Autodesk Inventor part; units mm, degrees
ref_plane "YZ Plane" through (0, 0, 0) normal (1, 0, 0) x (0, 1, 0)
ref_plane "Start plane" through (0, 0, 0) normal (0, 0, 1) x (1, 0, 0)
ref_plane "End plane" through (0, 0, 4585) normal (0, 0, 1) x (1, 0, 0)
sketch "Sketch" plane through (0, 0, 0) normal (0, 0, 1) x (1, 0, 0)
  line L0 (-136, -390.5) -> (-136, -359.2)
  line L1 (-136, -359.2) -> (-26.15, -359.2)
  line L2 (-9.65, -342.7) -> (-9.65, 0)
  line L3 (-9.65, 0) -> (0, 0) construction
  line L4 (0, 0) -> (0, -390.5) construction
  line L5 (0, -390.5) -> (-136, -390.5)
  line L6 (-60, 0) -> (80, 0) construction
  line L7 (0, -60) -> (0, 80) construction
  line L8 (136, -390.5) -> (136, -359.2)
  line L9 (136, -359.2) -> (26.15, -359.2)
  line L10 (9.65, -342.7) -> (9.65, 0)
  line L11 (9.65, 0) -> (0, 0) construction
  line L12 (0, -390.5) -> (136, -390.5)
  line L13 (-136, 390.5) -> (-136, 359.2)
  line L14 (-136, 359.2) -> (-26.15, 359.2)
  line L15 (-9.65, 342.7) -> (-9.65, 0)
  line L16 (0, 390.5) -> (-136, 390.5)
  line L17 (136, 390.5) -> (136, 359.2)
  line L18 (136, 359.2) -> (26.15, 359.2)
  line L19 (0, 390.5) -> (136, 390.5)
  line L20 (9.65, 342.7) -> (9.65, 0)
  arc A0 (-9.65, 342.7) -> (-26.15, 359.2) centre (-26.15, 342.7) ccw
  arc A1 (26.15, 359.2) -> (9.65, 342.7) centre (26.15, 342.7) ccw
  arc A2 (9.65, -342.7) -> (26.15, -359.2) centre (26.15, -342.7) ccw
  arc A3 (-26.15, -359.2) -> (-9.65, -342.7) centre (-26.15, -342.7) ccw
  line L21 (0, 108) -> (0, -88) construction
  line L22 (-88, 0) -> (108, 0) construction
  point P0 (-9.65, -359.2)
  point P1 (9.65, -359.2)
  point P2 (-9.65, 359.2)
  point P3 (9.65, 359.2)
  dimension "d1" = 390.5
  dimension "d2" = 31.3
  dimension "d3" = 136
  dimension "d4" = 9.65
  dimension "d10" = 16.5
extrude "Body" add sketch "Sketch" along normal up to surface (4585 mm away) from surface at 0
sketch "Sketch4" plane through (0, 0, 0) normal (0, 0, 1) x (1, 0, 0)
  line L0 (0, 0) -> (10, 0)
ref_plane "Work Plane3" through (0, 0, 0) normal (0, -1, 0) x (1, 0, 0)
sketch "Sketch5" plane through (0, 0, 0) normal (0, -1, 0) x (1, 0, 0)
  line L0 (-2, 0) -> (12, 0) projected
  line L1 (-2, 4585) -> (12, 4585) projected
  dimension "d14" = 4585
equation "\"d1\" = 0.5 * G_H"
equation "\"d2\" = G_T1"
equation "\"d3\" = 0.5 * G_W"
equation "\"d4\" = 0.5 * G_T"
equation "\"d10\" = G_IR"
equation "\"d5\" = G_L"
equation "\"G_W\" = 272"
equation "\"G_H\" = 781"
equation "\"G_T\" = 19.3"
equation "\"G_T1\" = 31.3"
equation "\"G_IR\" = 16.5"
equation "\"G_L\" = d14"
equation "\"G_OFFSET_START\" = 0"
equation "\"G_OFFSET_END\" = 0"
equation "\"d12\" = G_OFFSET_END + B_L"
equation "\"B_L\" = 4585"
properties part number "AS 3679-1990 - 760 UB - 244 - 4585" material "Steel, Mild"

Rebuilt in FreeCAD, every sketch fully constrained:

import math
import FreeCAD as App
import Part
import Sketcher

V = App.Vector

doc = App.newDocument("Part")
body = doc.addObject("PartDesign::Body", "Body")

# Sketch on XY plane
sketch1 = body.newObject("Sketcher::SketchObject", "Sketch")
sketch1.AttachmentSupport = (doc.getObject("XY_Plane"), [""])
sketch1.MapMode = "FlatFace"
sketch1.addGeometry(Part.LineSegment(V(-136, -359, 0), V(-136, -390, 0)), False)
sketch1.addGeometry(Part.LineSegment(V(-136, -390, 0), V(136, -390, 0)), False)
sketch1.addGeometry(Part.LineSegment(V(136, -390, 0), V(136, -359, 0)), False)
sketch1.addGeometry(Part.LineSegment(V(136, -359, 0), V(26, -359, 0)), False)
sketch1.addGeometry(Part.ArcOfCircle(Part.Circle(V(26, -343, 0), V(0, 0, 1), 16), math.radians(180), math.radians(270)), False)
sketch1.addGeometry(Part.LineSegment(V(10, -343, 0), V(10, 343, 0)), False)
sketch1.addGeometry(Part.ArcOfCircle(Part.Circle(V(26, 343, 0), V(0, 0, 1), 16), math.radians(90), math.radians(180)), False)
sketch1.addGeometry(Part.LineSegment(V(26, 359, 0), V(136, 359, 0)), False)
sketch1.addGeometry(Part.LineSegment(V(136, 359, 0), V(136, 390, 0)), False)
sketch1.addGeometry(Part.LineSegment(V(136, 390, 0), V(-136, 390, 0)), False)
sketch1.addGeometry(Part.LineSegment(V(-136, 390, 0), V(-136, 359, 0)), False)
sketch1.addGeometry(Part.LineSegment(V(-136, 359, 0), V(-26, 359, 0)), False)
sketch1.addGeometry(Part.ArcOfCircle(Part.Circle(V(-26, 343, 0), V(0, 0, 1), 16), math.radians(0), math.radians(90)), False)
sketch1.addGeometry(Part.LineSegment(V(-10, 343, 0), V(-10, -343, 0)), False)
sketch1.addGeometry(Part.ArcOfCircle(Part.Circle(V(-26, -343, 0), V(0, 0, 1), 16), math.radians(-90), math.radians(0)), False)
sketch1.addGeometry(Part.LineSegment(V(-26, -359, 0), V(-136, -359, 0)), False)
sketch1.addConstraint(Sketcher.Constraint("Coincident", 0, 2, 1, 1))
sketch1.addConstraint(Sketcher.Constraint("Coincident", 1, 2, 2, 1))
sketch1.addConstraint(Sketcher.Constraint("Coincident", 2, 2, 3, 1))
sketch1.addConstraint(Sketcher.Constraint("Tangent", 3, 2, 4, 2))
sketch1.addConstraint(Sketcher.Constraint("Tangent", 4, 1, 5, 1))
sketch1.addConstraint(Sketcher.Constraint("Tangent", 5, 2, 6, 2))
sketch1.addConstraint(Sketcher.Constraint("Tangent", 6, 1, 7, 1))
sketch1.addConstraint(Sketcher.Constraint("Coincident", 7, 2, 8, 1))
sketch1.addConstraint(Sketcher.Constraint("Coincident", 8, 2, 9, 1))
sketch1.addConstraint(Sketcher.Constraint("Coincident", 9, 2, 10, 1))
sketch1.addConstraint(Sketcher.Constraint("Coincident", 10, 2, 11, 1))
sketch1.addConstraint(Sketcher.Constraint("Tangent", 11, 2, 12, 2))
sketch1.addConstraint(Sketcher.Constraint("Tangent", 12, 1, 13, 1))
sketch1.addConstraint(Sketcher.Constraint("Tangent", 13, 2, 14, 2))
sketch1.addConstraint(Sketcher.Constraint("Tangent", 14, 1, 15, 1))
sketch1.addConstraint(Sketcher.Constraint("Coincident", 15, 2, 0, 1))
sketch1.addConstraint(Sketcher.Constraint("Vertical", 0))
sketch1.addConstraint(Sketcher.Constraint("Horizontal", 1))
sketch1.addConstraint(Sketcher.Constraint("Vertical", 2))
sketch1.addConstraint(Sketcher.Constraint("Horizontal", 3))
sketch1.addConstraint(Sketcher.Constraint("Vertical", 5))
sketch1.addConstraint(Sketcher.Constraint("Horizontal", 7))
sketch1.addConstraint(Sketcher.Constraint("Vertical", 8))
sketch1.addConstraint(Sketcher.Constraint("Horizontal", 9))
sketch1.addConstraint(Sketcher.Constraint("Vertical", 10))
sketch1.addConstraint(Sketcher.Constraint("Horizontal", 11))
sketch1.addConstraint(Sketcher.Constraint("Vertical", 13))
sketch1.addConstraint(Sketcher.Constraint("Horizontal", 15))
sketch1.addConstraint(Sketcher.Constraint("Equal", 4, 6))
sketch1.addConstraint(Sketcher.Constraint("Equal", 6, 12))
sketch1.addConstraint(Sketcher.Constraint("Equal", 12, 14))
sketch1.addConstraint(Sketcher.Constraint("Symmetric", 4, 3, 12, 3, -1, 1))
sketch1.addConstraint(Sketcher.Constraint("Symmetric", 0, 2, 8, 2, -1, 1))
sketch1.addConstraint(Sketcher.Constraint("Symmetric", 7, 2, 10, 2, -2))
sketch1.addConstraint(Sketcher.Constraint("Symmetric", 2, 2, 15, 2, -2))
sketch1.addConstraint(Sketcher.Constraint("Radius", 4, 16.5))
sketch1.addConstraint(Sketcher.Constraint("DistanceY", 0, 2, 0, 1, 31.3))
sketch1.addConstraint(Sketcher.Constraint("DistanceX", 0, 2, -1, 1, 136.0))
sketch1.addConstraint(Sketcher.Constraint("DistanceY", 0, 2, -1, 1, 390.5))
sketch1.addConstraint(Sketcher.Constraint("DistanceX", -1, 1, 4, 1, 9.65))
pad1 = body.newObject("PartDesign::Pad", "Pad")
pad1.Profile = sketch1
pad1.Length = 4585

doc.recompute()
